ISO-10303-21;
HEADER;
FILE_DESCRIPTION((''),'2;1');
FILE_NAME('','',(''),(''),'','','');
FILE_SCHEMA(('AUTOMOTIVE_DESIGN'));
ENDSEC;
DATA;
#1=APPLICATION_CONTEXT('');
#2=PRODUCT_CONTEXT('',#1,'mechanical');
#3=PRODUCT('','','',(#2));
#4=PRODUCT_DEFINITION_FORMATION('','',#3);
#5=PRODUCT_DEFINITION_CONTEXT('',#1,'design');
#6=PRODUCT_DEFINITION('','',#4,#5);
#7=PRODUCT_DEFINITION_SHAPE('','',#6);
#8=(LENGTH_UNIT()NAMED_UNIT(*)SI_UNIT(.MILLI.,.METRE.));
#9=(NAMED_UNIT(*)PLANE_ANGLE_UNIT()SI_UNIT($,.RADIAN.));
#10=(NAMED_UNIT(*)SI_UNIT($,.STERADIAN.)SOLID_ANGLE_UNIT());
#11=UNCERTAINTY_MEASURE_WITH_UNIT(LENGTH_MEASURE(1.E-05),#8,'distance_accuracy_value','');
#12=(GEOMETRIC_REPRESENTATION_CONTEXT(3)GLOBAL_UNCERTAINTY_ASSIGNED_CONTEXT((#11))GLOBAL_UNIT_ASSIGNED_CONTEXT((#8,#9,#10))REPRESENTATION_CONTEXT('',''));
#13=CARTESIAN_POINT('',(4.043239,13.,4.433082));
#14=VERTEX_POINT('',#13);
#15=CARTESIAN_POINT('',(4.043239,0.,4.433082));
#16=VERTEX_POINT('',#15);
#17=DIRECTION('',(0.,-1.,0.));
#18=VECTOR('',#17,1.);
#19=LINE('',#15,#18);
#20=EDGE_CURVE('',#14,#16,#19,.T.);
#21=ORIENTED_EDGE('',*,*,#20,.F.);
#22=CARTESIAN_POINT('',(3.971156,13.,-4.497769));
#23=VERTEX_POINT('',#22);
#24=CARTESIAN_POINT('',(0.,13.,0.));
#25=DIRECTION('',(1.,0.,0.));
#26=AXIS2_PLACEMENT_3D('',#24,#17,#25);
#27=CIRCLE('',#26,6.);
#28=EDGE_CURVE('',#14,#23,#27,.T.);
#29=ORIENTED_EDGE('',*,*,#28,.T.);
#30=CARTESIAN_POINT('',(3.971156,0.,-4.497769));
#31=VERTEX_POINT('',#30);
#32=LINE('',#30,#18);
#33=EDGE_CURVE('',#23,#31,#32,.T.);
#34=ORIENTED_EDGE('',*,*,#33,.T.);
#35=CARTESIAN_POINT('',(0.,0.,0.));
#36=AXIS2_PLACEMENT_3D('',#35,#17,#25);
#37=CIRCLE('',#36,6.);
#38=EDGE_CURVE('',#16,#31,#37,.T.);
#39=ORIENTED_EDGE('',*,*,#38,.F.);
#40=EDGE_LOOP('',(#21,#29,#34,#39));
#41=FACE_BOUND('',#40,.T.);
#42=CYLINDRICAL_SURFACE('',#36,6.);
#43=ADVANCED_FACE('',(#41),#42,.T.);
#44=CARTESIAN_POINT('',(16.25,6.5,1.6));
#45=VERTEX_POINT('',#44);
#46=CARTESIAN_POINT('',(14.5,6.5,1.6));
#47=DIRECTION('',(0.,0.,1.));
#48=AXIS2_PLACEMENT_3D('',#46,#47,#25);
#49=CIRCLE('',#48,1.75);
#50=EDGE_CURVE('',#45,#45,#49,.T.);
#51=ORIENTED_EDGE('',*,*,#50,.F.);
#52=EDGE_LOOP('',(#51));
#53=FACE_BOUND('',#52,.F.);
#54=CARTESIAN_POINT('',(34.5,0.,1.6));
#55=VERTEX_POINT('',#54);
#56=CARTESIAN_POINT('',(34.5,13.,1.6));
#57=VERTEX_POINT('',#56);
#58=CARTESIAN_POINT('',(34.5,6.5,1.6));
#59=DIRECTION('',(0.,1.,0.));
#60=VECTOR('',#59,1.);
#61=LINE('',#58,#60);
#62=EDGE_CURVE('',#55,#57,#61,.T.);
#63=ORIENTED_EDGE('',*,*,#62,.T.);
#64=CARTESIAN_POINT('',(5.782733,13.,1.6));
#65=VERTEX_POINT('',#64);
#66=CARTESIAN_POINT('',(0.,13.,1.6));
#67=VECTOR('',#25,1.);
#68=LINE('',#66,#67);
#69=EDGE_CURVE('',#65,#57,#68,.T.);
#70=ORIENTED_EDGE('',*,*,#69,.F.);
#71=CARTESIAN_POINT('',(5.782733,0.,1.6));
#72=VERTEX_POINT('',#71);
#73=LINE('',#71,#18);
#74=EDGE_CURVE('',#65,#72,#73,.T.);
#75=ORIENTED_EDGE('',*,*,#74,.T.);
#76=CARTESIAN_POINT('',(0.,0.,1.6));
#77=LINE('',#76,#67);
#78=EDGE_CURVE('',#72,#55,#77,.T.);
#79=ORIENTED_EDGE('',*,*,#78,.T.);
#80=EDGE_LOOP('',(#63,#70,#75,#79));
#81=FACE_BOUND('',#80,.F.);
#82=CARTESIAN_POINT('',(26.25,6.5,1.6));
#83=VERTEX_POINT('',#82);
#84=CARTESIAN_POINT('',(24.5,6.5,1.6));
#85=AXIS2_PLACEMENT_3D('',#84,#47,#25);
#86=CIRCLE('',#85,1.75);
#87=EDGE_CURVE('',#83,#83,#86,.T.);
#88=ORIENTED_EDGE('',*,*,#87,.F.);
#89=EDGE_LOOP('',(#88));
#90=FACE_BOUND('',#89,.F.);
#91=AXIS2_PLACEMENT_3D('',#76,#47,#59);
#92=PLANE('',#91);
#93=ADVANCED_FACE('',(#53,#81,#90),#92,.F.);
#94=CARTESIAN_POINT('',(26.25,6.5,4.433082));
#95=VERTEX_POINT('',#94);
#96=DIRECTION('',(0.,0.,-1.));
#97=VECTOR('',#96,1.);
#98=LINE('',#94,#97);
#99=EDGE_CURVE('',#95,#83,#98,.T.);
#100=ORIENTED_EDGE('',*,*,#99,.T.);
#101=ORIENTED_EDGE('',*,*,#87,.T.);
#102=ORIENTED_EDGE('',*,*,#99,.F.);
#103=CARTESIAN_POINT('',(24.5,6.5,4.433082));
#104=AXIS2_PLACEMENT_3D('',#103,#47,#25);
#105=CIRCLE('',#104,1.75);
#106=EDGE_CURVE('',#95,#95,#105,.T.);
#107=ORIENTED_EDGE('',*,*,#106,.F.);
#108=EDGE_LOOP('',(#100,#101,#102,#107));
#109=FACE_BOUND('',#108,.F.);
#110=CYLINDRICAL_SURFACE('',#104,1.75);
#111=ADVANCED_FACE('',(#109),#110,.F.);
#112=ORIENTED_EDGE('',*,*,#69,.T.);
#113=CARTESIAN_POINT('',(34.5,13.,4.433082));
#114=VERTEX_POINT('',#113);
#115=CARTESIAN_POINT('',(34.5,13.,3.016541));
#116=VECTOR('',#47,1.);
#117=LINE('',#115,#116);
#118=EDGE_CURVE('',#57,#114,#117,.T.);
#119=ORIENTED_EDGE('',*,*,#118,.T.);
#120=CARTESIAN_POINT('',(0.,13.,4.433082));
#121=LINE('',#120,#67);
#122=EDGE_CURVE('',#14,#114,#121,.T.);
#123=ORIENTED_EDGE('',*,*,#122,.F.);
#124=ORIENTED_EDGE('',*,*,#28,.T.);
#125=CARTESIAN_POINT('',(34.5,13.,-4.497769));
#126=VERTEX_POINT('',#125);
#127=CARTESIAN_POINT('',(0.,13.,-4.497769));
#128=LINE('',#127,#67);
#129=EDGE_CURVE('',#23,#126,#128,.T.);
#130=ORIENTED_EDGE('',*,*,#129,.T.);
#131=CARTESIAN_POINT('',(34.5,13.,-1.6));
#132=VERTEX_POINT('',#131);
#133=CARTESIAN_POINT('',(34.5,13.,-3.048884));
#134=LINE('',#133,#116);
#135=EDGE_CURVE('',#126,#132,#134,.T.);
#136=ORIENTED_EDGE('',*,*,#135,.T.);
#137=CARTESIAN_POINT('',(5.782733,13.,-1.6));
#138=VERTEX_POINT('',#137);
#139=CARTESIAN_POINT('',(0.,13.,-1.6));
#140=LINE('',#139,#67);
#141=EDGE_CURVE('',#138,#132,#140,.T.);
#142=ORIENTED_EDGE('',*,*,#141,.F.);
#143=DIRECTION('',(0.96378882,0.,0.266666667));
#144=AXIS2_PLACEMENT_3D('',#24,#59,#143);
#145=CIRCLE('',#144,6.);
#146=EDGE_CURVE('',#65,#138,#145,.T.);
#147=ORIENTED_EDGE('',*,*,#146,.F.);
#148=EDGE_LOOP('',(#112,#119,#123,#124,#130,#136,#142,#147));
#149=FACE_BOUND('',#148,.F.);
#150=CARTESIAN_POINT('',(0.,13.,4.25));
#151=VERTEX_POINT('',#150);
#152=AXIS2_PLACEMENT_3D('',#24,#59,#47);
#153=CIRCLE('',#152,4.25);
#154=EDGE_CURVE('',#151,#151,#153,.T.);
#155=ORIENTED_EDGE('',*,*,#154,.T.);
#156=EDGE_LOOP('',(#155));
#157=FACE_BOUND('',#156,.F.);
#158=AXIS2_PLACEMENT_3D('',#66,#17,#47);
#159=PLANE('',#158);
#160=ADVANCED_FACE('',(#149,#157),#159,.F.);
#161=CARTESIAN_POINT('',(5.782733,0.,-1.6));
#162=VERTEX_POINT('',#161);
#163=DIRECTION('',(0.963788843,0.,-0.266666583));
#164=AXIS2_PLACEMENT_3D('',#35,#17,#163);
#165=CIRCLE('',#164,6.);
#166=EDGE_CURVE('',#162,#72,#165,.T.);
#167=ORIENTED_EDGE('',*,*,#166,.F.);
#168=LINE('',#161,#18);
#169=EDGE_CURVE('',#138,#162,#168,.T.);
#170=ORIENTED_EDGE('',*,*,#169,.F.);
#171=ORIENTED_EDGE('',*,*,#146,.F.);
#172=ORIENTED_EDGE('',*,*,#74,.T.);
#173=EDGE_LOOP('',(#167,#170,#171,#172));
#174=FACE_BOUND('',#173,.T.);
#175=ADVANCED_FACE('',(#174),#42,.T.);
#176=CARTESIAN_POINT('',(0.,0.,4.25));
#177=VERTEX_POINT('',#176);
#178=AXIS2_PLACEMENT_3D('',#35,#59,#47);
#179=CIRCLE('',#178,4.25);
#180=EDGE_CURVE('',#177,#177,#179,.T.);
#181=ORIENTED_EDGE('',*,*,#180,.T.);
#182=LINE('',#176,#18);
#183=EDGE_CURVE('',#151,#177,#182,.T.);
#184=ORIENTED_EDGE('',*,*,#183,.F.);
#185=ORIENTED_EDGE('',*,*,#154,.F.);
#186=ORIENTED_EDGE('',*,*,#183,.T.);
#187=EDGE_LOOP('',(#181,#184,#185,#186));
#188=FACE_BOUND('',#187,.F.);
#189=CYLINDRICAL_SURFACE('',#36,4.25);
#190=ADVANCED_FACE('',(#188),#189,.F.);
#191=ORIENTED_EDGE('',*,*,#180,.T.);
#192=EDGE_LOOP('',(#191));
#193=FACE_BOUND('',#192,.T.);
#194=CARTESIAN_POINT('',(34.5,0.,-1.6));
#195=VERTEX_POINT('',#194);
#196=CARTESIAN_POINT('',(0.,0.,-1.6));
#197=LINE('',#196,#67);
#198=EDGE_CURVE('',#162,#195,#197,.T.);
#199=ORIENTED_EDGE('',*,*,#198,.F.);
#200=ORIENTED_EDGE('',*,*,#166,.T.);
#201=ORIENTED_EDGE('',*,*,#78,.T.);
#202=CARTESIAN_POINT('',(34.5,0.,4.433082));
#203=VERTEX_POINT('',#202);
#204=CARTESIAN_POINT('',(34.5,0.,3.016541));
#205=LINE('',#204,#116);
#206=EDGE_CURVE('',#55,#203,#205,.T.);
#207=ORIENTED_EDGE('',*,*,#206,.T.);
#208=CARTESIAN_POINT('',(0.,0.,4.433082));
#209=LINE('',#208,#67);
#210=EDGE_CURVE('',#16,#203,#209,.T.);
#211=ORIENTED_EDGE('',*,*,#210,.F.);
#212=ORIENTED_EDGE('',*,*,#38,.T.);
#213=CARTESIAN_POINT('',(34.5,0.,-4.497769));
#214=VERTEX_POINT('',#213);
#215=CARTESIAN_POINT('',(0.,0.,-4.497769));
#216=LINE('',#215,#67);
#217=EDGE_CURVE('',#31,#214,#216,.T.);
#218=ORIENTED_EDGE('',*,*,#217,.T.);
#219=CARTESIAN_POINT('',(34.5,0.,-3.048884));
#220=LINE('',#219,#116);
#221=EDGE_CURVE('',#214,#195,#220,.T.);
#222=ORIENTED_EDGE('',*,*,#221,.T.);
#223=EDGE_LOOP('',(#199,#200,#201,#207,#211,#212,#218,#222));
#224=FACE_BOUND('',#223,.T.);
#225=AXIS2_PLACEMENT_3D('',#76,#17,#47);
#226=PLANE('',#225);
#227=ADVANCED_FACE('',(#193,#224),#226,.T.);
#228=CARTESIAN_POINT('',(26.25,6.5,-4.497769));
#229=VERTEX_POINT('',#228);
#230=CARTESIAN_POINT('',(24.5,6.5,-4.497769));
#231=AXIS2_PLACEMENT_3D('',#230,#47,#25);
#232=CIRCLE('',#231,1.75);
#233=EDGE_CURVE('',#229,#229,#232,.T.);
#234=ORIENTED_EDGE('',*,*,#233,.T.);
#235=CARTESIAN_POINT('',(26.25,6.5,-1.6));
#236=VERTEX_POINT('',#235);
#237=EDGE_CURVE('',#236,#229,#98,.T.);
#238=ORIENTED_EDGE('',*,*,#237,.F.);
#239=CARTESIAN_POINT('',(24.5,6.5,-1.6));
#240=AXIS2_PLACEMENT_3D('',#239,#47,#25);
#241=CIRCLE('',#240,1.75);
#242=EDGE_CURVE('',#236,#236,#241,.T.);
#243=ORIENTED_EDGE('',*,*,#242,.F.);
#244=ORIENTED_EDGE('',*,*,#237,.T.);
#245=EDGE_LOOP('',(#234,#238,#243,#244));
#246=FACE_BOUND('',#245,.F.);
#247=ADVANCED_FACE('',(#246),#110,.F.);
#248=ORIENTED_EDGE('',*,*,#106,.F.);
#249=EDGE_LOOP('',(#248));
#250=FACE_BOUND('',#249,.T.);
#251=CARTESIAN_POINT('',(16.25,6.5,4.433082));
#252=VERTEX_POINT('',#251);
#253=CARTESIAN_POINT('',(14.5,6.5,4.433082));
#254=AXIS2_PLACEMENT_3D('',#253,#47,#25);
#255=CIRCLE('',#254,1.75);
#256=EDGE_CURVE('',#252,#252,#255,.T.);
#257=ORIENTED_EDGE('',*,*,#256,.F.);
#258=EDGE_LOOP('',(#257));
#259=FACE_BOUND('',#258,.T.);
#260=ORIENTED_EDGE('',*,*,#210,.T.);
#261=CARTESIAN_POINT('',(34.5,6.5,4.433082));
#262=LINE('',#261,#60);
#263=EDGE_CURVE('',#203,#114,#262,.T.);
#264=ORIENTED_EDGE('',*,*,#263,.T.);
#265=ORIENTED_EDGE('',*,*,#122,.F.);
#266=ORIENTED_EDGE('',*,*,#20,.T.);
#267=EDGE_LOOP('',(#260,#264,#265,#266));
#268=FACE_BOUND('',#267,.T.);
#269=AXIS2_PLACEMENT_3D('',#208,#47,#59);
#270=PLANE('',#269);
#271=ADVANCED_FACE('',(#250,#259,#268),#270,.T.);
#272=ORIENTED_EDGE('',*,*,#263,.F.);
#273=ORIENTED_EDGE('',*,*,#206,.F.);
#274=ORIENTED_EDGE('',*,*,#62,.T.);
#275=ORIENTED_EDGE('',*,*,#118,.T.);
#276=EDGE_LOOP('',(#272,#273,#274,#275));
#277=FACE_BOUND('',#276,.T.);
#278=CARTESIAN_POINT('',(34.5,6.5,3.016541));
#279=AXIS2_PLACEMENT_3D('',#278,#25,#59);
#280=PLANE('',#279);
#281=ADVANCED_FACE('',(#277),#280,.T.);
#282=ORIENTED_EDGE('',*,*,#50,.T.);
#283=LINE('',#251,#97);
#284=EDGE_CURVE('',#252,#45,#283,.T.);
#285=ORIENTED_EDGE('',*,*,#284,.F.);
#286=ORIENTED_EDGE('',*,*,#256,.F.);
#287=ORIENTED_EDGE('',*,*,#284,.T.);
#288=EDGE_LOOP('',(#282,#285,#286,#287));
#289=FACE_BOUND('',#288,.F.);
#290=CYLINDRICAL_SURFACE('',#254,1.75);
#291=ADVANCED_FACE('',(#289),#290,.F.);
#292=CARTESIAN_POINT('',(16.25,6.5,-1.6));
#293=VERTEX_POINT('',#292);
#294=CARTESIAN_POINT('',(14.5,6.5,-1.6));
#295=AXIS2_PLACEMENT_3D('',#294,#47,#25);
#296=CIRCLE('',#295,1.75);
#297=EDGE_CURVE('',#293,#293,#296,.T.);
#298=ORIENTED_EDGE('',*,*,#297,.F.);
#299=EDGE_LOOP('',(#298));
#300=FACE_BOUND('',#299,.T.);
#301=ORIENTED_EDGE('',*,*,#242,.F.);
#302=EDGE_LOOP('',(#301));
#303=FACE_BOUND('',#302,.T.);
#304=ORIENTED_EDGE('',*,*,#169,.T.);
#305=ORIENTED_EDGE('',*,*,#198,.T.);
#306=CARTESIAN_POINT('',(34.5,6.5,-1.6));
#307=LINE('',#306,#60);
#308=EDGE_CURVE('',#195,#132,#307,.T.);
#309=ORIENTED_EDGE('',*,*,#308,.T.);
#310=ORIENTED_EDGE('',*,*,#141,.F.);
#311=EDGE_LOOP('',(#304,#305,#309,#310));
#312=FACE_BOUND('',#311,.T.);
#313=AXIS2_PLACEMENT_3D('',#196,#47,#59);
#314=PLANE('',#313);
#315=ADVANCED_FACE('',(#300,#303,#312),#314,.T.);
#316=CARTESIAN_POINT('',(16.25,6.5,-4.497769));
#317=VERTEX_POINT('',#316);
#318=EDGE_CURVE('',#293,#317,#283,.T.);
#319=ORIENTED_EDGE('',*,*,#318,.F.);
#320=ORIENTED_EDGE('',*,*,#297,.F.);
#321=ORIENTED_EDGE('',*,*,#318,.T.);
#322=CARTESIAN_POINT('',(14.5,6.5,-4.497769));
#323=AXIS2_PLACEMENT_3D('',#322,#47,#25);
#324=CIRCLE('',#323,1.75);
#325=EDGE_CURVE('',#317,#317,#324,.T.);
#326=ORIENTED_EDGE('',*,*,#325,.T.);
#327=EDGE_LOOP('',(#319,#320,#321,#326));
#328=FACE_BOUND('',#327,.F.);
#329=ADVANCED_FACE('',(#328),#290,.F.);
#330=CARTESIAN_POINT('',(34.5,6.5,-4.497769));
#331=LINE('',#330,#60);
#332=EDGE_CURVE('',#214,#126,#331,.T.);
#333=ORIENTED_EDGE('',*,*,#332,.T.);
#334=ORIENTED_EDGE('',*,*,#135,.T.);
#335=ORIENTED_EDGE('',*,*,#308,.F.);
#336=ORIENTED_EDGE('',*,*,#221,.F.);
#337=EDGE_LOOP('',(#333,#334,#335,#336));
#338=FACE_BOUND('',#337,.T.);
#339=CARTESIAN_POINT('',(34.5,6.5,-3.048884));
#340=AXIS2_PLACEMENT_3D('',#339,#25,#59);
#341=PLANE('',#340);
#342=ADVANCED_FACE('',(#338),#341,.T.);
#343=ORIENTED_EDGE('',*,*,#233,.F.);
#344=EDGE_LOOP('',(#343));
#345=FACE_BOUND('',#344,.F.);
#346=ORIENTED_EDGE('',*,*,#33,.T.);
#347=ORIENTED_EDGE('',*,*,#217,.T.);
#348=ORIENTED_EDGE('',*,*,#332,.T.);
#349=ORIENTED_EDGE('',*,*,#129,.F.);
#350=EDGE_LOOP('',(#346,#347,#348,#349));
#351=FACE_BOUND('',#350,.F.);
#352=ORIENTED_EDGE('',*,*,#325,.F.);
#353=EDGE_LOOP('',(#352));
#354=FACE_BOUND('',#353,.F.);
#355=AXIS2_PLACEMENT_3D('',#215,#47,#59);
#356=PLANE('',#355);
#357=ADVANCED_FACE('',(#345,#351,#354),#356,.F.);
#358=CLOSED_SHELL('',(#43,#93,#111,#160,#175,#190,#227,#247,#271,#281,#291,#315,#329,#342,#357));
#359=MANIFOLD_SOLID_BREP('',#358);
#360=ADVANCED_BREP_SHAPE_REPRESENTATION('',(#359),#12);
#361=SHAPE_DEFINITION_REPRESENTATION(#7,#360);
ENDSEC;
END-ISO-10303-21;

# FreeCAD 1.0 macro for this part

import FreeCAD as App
import Part
import Sketcher

V = App.Vector


def add_polygon(sketch, points):
    """Adds a closed chain of lines whose ends are joined by coincident constraints."""
    first, n = sketch.GeometryCount, len(points)
    for a, b in zip(points, points[1:] + points[:1]):
        sketch.addGeometry(Part.LineSegment(App.Vector(*a, 0), App.Vector(*b, 0)), False)
    for i in range(n):
        sketch.addConstraint(Sketcher.Constraint("Coincident", first + i, 2, first + (i + 1) % n, 1))

doc = App.newDocument("Part")
body = doc.addObject("PartDesign::Body", "Body")

# Sketch on XZ plane
sketch1 = body.newObject("Sketcher::SketchObject", "Sketch")
sketch1.AttachmentSupport = (doc.getObject("XZ_Plane"), [""])
sketch1.MapMode = "FlatFace"
sketch1.addGeometry([
    Part.Circle(V(0, 0, 0), V(0, 0, 1), 6),
    Part.Circle(V(0, 0, 0), V(0, 0, 1), 4.2),
], False)
sketch1.addConstraint([
    Sketcher.Constraint("Coincident", 0, 3, -1, 1),
    Sketcher.Constraint("Coincident", 1, 3, -1, 1),
    Sketcher.Constraint("Diameter", 0, 12.0),
    Sketcher.Constraint("Diameter", 1, 8.5),
])
pad1 = body.newObject("PartDesign::Pad", "Pad")
pad1.Profile = sketch1
pad1.Length = 13
pad1.Reversed = True

# Sketch on YZ plane
sketch2 = body.newObject("Sketcher::SketchObject", "Sketch001")
sketch2.AttachmentSupport = (doc.getObject("YZ_Plane"), [""])
sketch2.MapMode = "FlatFace"
add_polygon(sketch2, [(0, 4.4), (0, 1.6), (13, 1.6), (13, 4.4)])  # lines 0-3
add_polygon(sketch2, [(0, -1.6), (0, -4.5), (13, -4.5), (13, -1.6)])  # lines 4-7
sketch2.addConstraint([
    Sketcher.Constraint("Vertical", 0),
    Sketcher.Constraint("Horizontal", 1),
    Sketcher.Constraint("Vertical", 2),
    Sketcher.Constraint("Horizontal", 3),
    Sketcher.Constraint("Vertical", 4),
    Sketcher.Constraint("Horizontal", 5),
    Sketcher.Constraint("Vertical", 6),
    Sketcher.Constraint("Horizontal", 7),
    Sketcher.Constraint("Symmetric", 0, 2, 7, 2, -1, 1),
    Sketcher.Constraint("PointOnObject", 0, 2, -2),
    Sketcher.Constraint("Vertical", 2, 2, 5, 2),
    Sketcher.Constraint("DistanceX", 1, 1, 1, 2, 13.0),
    Sketcher.Constraint("DistanceY", -1, 1, 0, 2, 1.6),
    Sketcher.Constraint("DistanceY", 0, 2, 0, 1, 2.833082),
    Sketcher.Constraint("DistanceY", 4, 2, 4, 1, 2.897769),
])
pad2 = body.newObject("PartDesign::Pad", "Pad001")
pad2.Profile = sketch2
pad2.Length = 34.5

# Sketch on XZ plane
sketch3 = body.newObject("Sketcher::SketchObject", "Sketch002")
sketch3.AttachmentSupport = (doc.getObject("XZ_Plane"), [""])
sketch3.MapMode = "FlatFace"
sketch3.AttachmentOffset = App.Placement(V(0, 0, -13), App.Rotation())
sketch3.addGeometry(Part.Circle(V(0, 0, 0), V(0, 0, 1), 4.2), False)
sketch3.addConstraint([
    Sketcher.Constraint("Coincident", 0, 3, -1, 1),
    Sketcher.Constraint("Diameter", 0, 8.5),
])
pocket1 = body.newObject("PartDesign::Pocket", "Pocket")
pocket1.Profile = sketch3
pocket1.Type = "ThroughAll"
pocket1.Reversed = True

# Sketch on XY plane
sketch4 = body.newObject("Sketcher::SketchObject", "Sketch003")
sketch4.AttachmentSupport = (doc.getObject("XY_Plane"), [""])
sketch4.MapMode = "FlatFace"
sketch4.AttachmentOffset = App.Placement(V(0, 0, 4.433082), App.Rotation())
sketch4.addGeometry([
    Part.Circle(V(14.5, 6.5, 0), V(0, 0, 1), 1.8),
    Part.Circle(V(24.5, 6.5, 0), V(0, 0, 1), 1.8),
], False)
sketch4.addConstraint([
    Sketcher.Constraint("Equal", 0, 1),
    Sketcher.Constraint("Horizontal", 0, 3, 1, 3),
    Sketcher.Constraint("Diameter", 0, 3.5),
    Sketcher.Constraint("DistanceX", 0, 3, 1, 3, 10.0),
    Sketcher.Constraint("DistanceX", -1, 1, 0, 3, 14.5),
    Sketcher.Constraint("DistanceY", -1, 1, 0, 3, 6.5),
])
pocket2 = body.newObject("PartDesign::Pocket", "Pocket001")
pocket2.Profile = sketch4
pocket2.Type = "ThroughAll"

doc.recompute()
